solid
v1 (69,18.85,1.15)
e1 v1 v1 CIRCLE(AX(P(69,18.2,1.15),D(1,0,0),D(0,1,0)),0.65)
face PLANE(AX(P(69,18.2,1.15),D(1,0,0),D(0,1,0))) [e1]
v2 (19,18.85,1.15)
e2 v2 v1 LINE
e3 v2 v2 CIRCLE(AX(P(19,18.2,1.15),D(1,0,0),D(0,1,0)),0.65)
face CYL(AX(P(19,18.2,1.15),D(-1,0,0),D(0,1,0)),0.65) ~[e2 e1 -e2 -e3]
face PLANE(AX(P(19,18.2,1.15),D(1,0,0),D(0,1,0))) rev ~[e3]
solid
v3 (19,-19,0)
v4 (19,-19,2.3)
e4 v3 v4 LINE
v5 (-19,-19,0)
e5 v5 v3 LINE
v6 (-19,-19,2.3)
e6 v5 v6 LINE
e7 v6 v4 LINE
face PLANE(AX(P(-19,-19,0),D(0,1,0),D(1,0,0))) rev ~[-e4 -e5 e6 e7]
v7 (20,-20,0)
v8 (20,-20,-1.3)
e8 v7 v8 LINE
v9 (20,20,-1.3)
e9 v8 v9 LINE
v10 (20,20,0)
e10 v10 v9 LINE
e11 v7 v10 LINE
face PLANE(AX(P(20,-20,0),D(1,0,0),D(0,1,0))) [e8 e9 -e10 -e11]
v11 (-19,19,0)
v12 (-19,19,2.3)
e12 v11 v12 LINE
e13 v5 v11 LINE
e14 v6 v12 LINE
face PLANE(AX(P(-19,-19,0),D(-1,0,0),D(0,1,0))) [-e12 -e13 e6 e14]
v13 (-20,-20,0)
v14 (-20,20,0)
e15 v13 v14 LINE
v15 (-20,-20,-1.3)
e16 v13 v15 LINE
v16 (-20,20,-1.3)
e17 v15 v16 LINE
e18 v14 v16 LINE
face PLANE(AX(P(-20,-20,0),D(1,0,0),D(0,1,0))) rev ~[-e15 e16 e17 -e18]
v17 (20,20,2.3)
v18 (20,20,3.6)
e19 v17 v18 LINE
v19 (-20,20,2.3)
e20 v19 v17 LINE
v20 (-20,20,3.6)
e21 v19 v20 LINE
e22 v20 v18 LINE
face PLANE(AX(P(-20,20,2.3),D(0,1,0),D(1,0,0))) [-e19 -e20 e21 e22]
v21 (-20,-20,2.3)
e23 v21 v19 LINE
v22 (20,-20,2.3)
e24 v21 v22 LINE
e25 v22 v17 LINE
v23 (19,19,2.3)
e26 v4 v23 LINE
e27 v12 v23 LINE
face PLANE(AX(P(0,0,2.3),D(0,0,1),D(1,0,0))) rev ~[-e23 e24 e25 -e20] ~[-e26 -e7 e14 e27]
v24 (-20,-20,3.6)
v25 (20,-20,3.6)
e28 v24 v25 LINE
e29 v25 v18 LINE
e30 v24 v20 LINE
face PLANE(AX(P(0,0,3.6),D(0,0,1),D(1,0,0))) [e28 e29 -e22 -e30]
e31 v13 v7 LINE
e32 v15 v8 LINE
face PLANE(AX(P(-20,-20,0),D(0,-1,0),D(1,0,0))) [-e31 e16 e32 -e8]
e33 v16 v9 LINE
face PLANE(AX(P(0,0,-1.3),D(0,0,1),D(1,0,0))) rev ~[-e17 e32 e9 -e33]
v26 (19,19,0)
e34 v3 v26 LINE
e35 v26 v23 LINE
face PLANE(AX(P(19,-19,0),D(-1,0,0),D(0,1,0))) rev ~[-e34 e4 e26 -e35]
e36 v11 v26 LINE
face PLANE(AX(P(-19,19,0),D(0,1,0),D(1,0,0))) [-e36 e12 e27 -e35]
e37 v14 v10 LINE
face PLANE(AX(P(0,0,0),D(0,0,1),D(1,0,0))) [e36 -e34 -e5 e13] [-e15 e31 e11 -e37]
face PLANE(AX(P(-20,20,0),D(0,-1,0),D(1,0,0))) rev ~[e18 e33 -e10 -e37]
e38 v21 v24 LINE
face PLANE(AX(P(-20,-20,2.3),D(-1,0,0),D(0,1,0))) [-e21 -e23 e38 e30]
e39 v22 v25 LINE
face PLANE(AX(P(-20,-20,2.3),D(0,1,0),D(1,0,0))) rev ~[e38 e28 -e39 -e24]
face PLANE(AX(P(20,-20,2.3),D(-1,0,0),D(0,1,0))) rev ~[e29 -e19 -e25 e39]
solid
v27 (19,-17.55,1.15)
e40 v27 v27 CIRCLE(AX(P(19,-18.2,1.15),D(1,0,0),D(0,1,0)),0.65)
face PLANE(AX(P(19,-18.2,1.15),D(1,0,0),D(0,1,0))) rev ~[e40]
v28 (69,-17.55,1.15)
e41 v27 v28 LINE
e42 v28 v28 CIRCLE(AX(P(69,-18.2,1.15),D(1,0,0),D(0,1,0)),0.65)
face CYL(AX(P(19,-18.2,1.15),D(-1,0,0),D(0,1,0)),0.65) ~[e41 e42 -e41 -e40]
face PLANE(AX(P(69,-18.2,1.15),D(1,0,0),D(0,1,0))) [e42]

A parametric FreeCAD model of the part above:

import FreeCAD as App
import Part
import Sketcher
from FreeCAD import Vector

doc = App.newDocument("Part")
body = doc.addObject("PartDesign::Body", "Body")

sketch1 = body.newObject("Sketcher::SketchObject", "Sketch")
sketch1.AttachmentSupport = (doc.getObject("XY_Plane"), [""])
sketch1.MapMode = "FlatFace"
sketch1.addGeometry(Part.LineSegment(Vector(-20, 20, 0), Vector(-20, -20, 0)), False)
sketch1.addGeometry(Part.LineSegment(Vector(-20, -20, 0), Vector(20, -20, 0)), False)
sketch1.addGeometry(Part.LineSegment(Vector(20, -20, 0), Vector(20, 20, 0)), False)
sketch1.addGeometry(Part.LineSegment(Vector(20, 20, 0), Vector(-20, 20, 0)), False)
sketch1.addConstraint(Sketcher.Constraint("Coincident", 0, 2, 1, 1))
sketch1.addConstraint(Sketcher.Constraint("Coincident", 1, 2, 2, 1))
sketch1.addConstraint(Sketcher.Constraint("Coincident", 2, 2, 3, 1))
sketch1.addConstraint(Sketcher.Constraint("Coincident", 3, 2, 0, 1))
sketch1.addConstraint(Sketcher.Constraint("Vertical", 0))
sketch1.addConstraint(Sketcher.Constraint("Horizontal", 1))
sketch1.addConstraint(Sketcher.Constraint("Vertical", 2))
sketch1.addConstraint(Sketcher.Constraint("Horizontal", 3))
sketch1.addConstraint(Sketcher.Constraint("Symmetric", 0, 2, 2, 2, -1, 1))
sketch1.addConstraint(Sketcher.Constraint("Equal", 3, 0))
sketch1.addConstraint(Sketcher.Constraint("DistanceX", 1, 1, 1, 2, 40.0))
pad1 = body.newObject("PartDesign::Pad", "Pad")
pad1.Profile = sketch1
pad1.Length = 1.3
pad1.Reversed = True

sketch2 = body.newObject("Sketcher::SketchObject", "Sketch001")
sketch2.AttachmentSupport = (doc.getObject("XY_Plane"), [""])
sketch2.MapMode = "FlatFace"
sketch2.addGeometry(Part.LineSegment(Vector(-19, 19, 0), Vector(-19, -19, 0)), False)
sketch2.addGeometry(Part.LineSegment(Vector(-19, -19, 0), Vector(19, -19, 0)), False)
sketch2.addGeometry(Part.LineSegment(Vector(19, -19, 0), Vector(19, 19, 0)), False)
sketch2.addGeometry(Part.LineSegment(Vector(19, 19, 0), Vector(-19, 19, 0)), False)
sketch2.addConstraint(Sketcher.Constraint("Coincident", 0, 2, 1, 1))
sketch2.addConstraint(Sketcher.Constraint("Coincident", 1, 2, 2, 1))
sketch2.addConstraint(Sketcher.Constraint("Coincident", 2, 2, 3, 1))
sketch2.addConstraint(Sketcher.Constraint("Coincident", 3, 2, 0, 1))
sketch2.addConstraint(Sketcher.Constraint("Vertical", 0))
sketch2.addConstraint(Sketcher.Constraint("Horizontal", 1))
sketch2.addConstraint(Sketcher.Constraint("Vertical", 2))
sketch2.addConstraint(Sketcher.Constraint("Horizontal", 3))
sketch2.addConstraint(Sketcher.Constraint("Symmetric", 0, 2, 2, 2, -1, 1))
sketch2.addConstraint(Sketcher.Constraint("Equal", 3, 0))
sketch2.addConstraint(Sketcher.Constraint("DistanceX", 1, 1, 1, 2, 38.0))
pad2 = body.newObject("PartDesign::Pad", "Pad001")
pad2.Profile = sketch2
pad2.Length = 2.3

sketch3 = body.newObject("Sketcher::SketchObject", "Sketch002")
sketch3.AttachmentSupport = (doc.getObject("XY_Plane"), [""])
sketch3.MapMode = "FlatFace"
sketch3.AttachmentOffset = App.Placement(Vector(0, 0, 2.3), App.Rotation())
sketch3.addGeometry(Part.LineSegment(Vector(-20, 20, 0), Vector(-20, -20, 0)), False)
sketch3.addGeometry(Part.LineSegment(Vector(-20, -20, 0), Vector(20, -20, 0)), False)
sketch3.addGeometry(Part.LineSegment(Vector(20, -20, 0), Vector(20, 20, 0)), False)
sketch3.addGeometry(Part.LineSegment(Vector(20, 20, 0), Vector(-20, 20, 0)), False)
sketch3.addConstraint(Sketcher.Constraint("Coincident", 0, 2, 1, 1))
sketch3.addConstraint(Sketcher.Constraint("Coincident", 1, 2, 2, 1))
sketch3.addConstraint(Sketcher.Constraint("Coincident", 2, 2, 3, 1))
sketch3.addConstraint(Sketcher.Constraint("Coincident", 3, 2, 0, 1))
sketch3.addConstraint(Sketcher.Constraint("Vertical", 0))
sketch3.addConstraint(Sketcher.Constraint("Horizontal", 1))
sketch3.addConstraint(Sketcher.Constraint("Vertical", 2))
sketch3.addConstraint(Sketcher.Constraint("Horizontal", 3))
sketch3.addConstraint(Sketcher.Constraint("Symmetric", 0, 2, 2, 2, -1, 1))
sketch3.addConstraint(Sketcher.Constraint("Equal", 3, 0))
sketch3.addConstraint(Sketcher.Constraint("DistanceX", 1, 1, 1, 2, 40.0))
pad3 = body.newObject("PartDesign::Pad", "Pad002")
pad3.Profile = sketch3
pad3.Length = 1.3
body2 = doc.addObject("PartDesign::Body", "Body001")
body2.AllowCompound = True

sketch4 = body2.newObject("Sketcher::SketchObject", "Sketch003")
sketch4.AttachmentSupport = (doc.getObject("YZ_Plane001"), [""])
sketch4.MapMode = "FlatFace"
sketch4.AttachmentOffset = App.Placement(Vector(0, 0, 19), App.Rotation())
sketch4.addGeometry(Part.Circle(Vector(-18.2, 1.1, 0), Vector(0, 0, 1), 0.7), False)
sketch4.addGeometry(Part.Circle(Vector(18.2, 1.1, 0), Vector(0, 0, 1), 0.7), False)
sketch4.addConstraint(Sketcher.Constraint("Equal", 0, 1))
sketch4.addConstraint(Sketcher.Constraint("Symmetric", 0, 3, 1, 3, -2))
sketch4.addConstraint(Sketcher.Constraint("Diameter", 0, 1.3))
sketch4.addConstraint(Sketcher.Constraint("DistanceX", 0, 3, -1, 1, 18.2))
sketch4.addConstraint(Sketcher.Constraint("DistanceY", -1, 1, 0, 3, 1.15))
pad4 = body2.newObject("PartDesign::Pad", "Pad003")
pad4.Profile = sketch4
pad4.Length = 50

doc.recompute()
